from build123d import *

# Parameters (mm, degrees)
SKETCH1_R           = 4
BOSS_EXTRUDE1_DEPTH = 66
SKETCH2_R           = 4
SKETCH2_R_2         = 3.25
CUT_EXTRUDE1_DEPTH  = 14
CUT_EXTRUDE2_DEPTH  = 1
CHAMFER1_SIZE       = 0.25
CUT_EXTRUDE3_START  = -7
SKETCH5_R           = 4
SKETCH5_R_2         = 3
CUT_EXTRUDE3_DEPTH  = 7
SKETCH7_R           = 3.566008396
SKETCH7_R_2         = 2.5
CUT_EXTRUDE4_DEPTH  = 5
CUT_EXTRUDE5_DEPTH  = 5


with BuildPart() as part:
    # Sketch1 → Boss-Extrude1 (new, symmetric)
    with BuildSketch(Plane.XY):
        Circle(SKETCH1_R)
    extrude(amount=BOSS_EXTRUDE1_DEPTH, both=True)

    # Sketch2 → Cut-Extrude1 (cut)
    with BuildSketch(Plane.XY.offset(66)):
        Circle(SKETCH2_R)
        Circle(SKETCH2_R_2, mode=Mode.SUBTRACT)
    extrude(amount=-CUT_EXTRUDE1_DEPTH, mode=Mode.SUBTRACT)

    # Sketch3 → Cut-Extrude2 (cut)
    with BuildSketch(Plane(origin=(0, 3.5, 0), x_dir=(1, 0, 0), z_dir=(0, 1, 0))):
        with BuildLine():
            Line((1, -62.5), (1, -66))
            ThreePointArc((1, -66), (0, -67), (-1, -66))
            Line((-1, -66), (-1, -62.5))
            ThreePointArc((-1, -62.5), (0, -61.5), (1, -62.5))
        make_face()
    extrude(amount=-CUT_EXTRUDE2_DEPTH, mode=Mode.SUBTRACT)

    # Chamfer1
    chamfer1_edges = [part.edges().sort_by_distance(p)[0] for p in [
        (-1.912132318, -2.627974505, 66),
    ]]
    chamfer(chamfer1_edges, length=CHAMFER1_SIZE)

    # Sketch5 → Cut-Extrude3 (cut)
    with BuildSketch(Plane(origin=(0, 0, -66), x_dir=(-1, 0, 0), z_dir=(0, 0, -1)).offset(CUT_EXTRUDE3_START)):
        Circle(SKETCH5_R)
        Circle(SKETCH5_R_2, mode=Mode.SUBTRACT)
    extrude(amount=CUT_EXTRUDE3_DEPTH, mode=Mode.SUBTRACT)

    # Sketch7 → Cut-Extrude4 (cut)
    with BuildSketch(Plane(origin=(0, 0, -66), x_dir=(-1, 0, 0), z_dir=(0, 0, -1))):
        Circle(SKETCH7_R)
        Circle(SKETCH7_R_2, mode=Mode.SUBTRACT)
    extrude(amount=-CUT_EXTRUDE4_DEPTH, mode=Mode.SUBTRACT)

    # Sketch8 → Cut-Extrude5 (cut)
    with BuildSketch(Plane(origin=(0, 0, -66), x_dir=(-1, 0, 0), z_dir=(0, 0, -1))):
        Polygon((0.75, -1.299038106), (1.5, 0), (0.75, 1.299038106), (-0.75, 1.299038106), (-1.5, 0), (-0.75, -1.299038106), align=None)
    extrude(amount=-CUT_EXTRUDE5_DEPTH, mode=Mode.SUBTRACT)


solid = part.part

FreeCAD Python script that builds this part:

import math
import FreeCAD as App
import Part
import Sketcher
from FreeCAD import Vector
Q = App.Units.Quantity


def edges_at(feature, points):
    """Names of the edges that pass closest to the given points."""
    edges = feature.Shape.Edges
    near = lambda p: min(range(len(edges)), key=lambda i: edges[i].distToShape(Part.Vertex(*p))[0])
    return sorted({f"Edge{near(p) + 1}" for p in points})


def add_polygon(sketch, points):
    """Adds a closed chain of lines whose ends are joined by coincident constraints."""
    first, n = sketch.GeometryCount, len(points)
    for a, b in zip(points, points[1:] + points[:1]):
        sketch.addGeometry(Part.LineSegment(App.Vector(*a, 0), App.Vector(*b, 0)), False)
    for i in range(n):
        sketch.addConstraint(Sketcher.Constraint("Coincident", first + i, 2, first + (i + 1) % n, 1))

doc = App.newDocument("Part")
params = doc.addObject("Spreadsheet::Sheet", "Params")
for row, (alias, value) in enumerate([
    ("sketch1_diameter", "8 mm"),
    ("pad1_length", "132 mm"),
    ("sketch2_diameter", "8 mm"),
    ("sketch2_diameter2", "6.5 mm"),
    ("pocket1_length", "14 mm"),
    ("sketch3_radius", "1 mm"),
    ("sketch3_height", "3.5 mm"),
    ("pocket2_length", "1 mm"),
    ("chamfer_size", "0.25 mm"),
    ("sketch4_diameter", "8 mm"),
    ("sketch4_diameter2", "6 mm"),
    ("pocket3_length", "7 mm"),
    ("sketch5_diameter", "5 mm"),
    ("pocket4_length", "5 mm"),
    ("sketch6_width", "1.5 mm"),
    ("pocket5_length", "5 mm"),
], start=1):
    params.set(f"A{row}", alias)
    params.set(f"B{row}", "=" + value)
    params.setAlias(f"B{row}", alias)

body = doc.addObject("PartDesign::Body", "Body")

sketch1 = body.newObject("Sketcher::SketchObject", "Sketch")
sketch1.AttachmentSupport = (doc.getObject("XY_Plane"), [""])
sketch1.MapMode = "FlatFace"
sketch1.addGeometry(Part.Circle(Vector(0, 0, 0), Vector(0, 0, 1), 4), False)
sketch1.addConstraint([
    Sketcher.Constraint("Coincident", 0, 3, -1, 1),
    Sketcher.Constraint("Diameter", 0, 8.0),
])
sketch1.setExpression("Constraints[1]", "Params.sketch1_diameter")
pad1 = body.newObject("PartDesign::Pad", "Pad")
pad1.Profile = sketch1
pad1.setExpression("Length", "Params.pad1_length")
pad1.Midplane = True

sketch2 = body.newObject("Sketcher::SketchObject", "Sketch001")
sketch2.AttachmentSupport = (doc.getObject("XY_Plane"), [""])
sketch2.MapMode = "FlatFace"
sketch2.AttachmentOffset = App.Placement(Vector(0, 0, 66), App.Rotation())
sketch2.addGeometry([
    Part.Circle(Vector(0, 0, 0), Vector(0, 0, 1), 4),
    Part.Circle(Vector(0, 0, 0), Vector(0, 0, 1), 3.2),
], False)
sketch2.addConstraint([
    Sketcher.Constraint("Coincident", 0, 3, -1, 1),
    Sketcher.Constraint("Coincident", 1, 3, -1, 1),
    Sketcher.Constraint("Diameter", 0, 8.0),
    Sketcher.Constraint("Diameter", 1, 6.5),
])
sketch2.setExpression("Constraints[2]", "Params.sketch2_diameter")
sketch2.setExpression("Constraints[3]", "Params.sketch2_diameter2")
pocket1 = body.newObject("PartDesign::Pocket", "Pocket")
pocket1.Profile = sketch2
pocket1.setExpression("Length", "Params.pocket1_length")

sketch3 = body.newObject("Sketcher::SketchObject", "Sketch002")
sketch3.AttachmentSupport = (doc.getObject("XZ_Plane"), [""])
sketch3.MapMode = "FlatFace"
sketch3.AttachmentOffset = App.Placement(Vector(0, 0, -3.5), App.Rotation())
sketch3.addGeometry([
    Part.LineSegment(Vector(1, 66, 0), Vector(1, 62.5, 0)),
    Part.ArcOfCircle(Part.Circle(Vector(0, 62.5, 0), Vector(0, 0, 1), 1), math.radians(180), math.radians(360)),
    Part.LineSegment(Vector(-1, 62.5, 0), Vector(-1, 66, 0)),
    Part.ArcOfCircle(Part.Circle(Vector(0, 66, 0), Vector(0, 0, 1), 1), math.radians(0), math.radians(180)),
], False)
sketch3.addConstraint([
    Sketcher.Constraint("Tangent", 0, 2, 1, 2),
    Sketcher.Constraint("Tangent", 1, 1, 2, 1),
    Sketcher.Constraint("Tangent", 2, 2, 3, 2),
    Sketcher.Constraint("Tangent", 3, 1, 0, 1),
    Sketcher.Constraint("Vertical", 0),
    Sketcher.Constraint("Vertical", 2),
    Sketcher.Constraint("PointOnObject", 1, 3, -2),
    Sketcher.Constraint("Radius", 1, 1.0),
    Sketcher.Constraint("DistanceY", 0, 2, 0, 1, 3.5),
    Sketcher.Constraint("DistanceY", -1, 1, 3, 3, 66.0),
])
sketch3.setExpression("Constraints[7]", "Params.sketch3_radius")
sketch3.setExpression("Constraints[8]", "Params.sketch3_height")
pocket2 = body.newObject("PartDesign::Pocket", "Pocket001")
pocket2.Profile = sketch3
pocket2.setExpression("Length", "Params.pocket2_length")
pocket2.Reversed = True
doc.recompute()

chamfer = body.newObject("PartDesign::Chamfer", "Chamfer")
chamfer.Base = (pocket2, edges_at(pocket2, [(-1.912, -2.628, 66)]))
chamfer.setExpression("Size", "Params.chamfer_size")

sketch4 = body.newObject("Sketcher::SketchObject", "Sketch003")
sketch4.AttachmentSupport = (doc.getObject("XY_Plane"), [""])
sketch4.MapMode = "FlatFace"
sketch4.AttachmentOffset = App.Placement(Vector(0, 0, -59), App.Rotation())
sketch4.addGeometry([
    Part.Circle(Vector(0, 0, 0), Vector(0, 0, 1), 4),
    Part.Circle(Vector(0, 0, 0), Vector(0, 0, 1), 3),
], False)
sketch4.addConstraint([
    Sketcher.Constraint("Coincident", 0, 3, -1, 1),
    Sketcher.Constraint("Coincident", 1, 3, -1, 1),
    Sketcher.Constraint("Diameter", 0, 8.0),
    Sketcher.Constraint("Diameter", 1, 6.0),
])
sketch4.setExpression("Constraints[2]", "Params.sketch4_diameter")
sketch4.setExpression("Constraints[3]", "Params.sketch4_diameter2")
pocket3 = body.newObject("PartDesign::Pocket", "Pocket002")
pocket3.Profile = sketch4
pocket3.setExpression("Length", "Params.pocket3_length")

sketch5 = body.newObject("Sketcher::SketchObject", "Sketch004")
sketch5.AttachmentSupport = (doc.getObject("XY_Plane"), [""])
sketch5.MapMode = "FlatFace"
sketch5.AttachmentOffset = App.Placement(Vector(0, 0, -66), App.Rotation())
sketch5.addGeometry([
    Part.Circle(Vector(0, 0, 0), Vector(0, 0, 1), 3.6),
    Part.Circle(Vector(0, 0, 0), Vector(0, 0, 1), 2.5),
], False)
sketch5.addConstraint([
    Sketcher.Constraint("Coincident", 0, 3, -1, 1),
    Sketcher.Constraint("Coincident", 1, 3, -1, 1),
    Sketcher.Constraint("Diameter", 1, 5.0),
    Sketcher.Constraint("Diameter", 0, 7.132017),
])
sketch5.setExpression("Constraints[2]", "Params.sketch5_diameter")
pocket4 = body.newObject("PartDesign::Pocket", "Pocket003")
pocket4.Profile = sketch5
pocket4.setExpression("Length", "Params.pocket4_length")
pocket4.Reversed = True

sketch6 = body.newObject("Sketcher::SketchObject", "Sketch005")
sketch6.AttachmentSupport = (doc.getObject("XY_Plane"), [""])
sketch6.MapMode = "FlatFace"
sketch6.AttachmentOffset = App.Placement(Vector(0, 0, -66), App.Rotation())
add_polygon(sketch6, [(-0.8, -1.3), (-1.5, 0), (-0.8, 1.3), (0.8, 1.3), (1.5, 0), (0.8, -1.3)])
sketch6.addConstraint([
    Sketcher.Constraint("Horizontal", 2),
    Sketcher.Constraint("Horizontal", 5),
    Sketcher.Constraint("Symmetric", 0, 2, 3, 2, -1, 1),
    Sketcher.Constraint("Symmetric", 1, 2, 4, 2, -1, 1),
    Sketcher.Constraint("PointOnObject", 0, 2, -1),
    Sketcher.Constraint("Parallel", 0, 3),
    Sketcher.Constraint("Vertical", 2, 2, 4, 2),
    Sketcher.Constraint("Angle", 0, Q("120 deg")),
    Sketcher.Constraint("DistanceX", 2, 1, 2, 2, 1.5),
    Sketcher.Constraint("DistanceX", 0, 2, 3, 2, 3.0),
])
sketch6.setExpression("Constraints[14]", "Params.sketch6_width")
pocket5 = body.newObject("PartDesign::Pocket", "Pocket004")
pocket5.Profile = sketch6
pocket5.setExpression("Length", "Params.pocket5_length")
pocket5.Reversed = True

doc.recompute()
